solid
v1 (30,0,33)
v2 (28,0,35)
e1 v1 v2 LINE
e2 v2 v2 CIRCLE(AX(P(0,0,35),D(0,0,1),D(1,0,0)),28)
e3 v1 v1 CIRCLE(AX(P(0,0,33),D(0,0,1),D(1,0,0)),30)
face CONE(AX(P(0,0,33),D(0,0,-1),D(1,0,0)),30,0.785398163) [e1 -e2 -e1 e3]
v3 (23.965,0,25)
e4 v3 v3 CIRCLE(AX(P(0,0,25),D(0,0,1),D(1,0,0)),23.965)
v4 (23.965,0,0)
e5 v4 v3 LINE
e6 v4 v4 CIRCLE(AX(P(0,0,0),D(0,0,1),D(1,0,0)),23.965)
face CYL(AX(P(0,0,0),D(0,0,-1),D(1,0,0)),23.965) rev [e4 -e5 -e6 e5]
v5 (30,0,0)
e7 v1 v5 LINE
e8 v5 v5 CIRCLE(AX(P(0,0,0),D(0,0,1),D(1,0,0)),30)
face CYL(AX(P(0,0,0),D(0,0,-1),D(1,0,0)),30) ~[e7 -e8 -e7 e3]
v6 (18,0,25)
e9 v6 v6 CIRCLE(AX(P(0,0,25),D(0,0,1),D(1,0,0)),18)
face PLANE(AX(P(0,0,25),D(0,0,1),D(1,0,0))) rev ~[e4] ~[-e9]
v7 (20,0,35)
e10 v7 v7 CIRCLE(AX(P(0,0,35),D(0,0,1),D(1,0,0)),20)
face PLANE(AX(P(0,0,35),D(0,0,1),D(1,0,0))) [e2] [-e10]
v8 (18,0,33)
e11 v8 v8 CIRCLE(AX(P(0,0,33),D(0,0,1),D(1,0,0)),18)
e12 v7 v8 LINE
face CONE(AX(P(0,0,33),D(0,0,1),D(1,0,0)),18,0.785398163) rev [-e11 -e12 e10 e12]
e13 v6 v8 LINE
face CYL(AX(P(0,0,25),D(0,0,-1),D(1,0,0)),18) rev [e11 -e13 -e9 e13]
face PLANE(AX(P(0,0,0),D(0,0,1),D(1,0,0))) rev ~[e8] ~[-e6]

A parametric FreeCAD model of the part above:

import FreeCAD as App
import Part
import Sketcher

V = App.Vector


def edges_at(feature, points):
    """Names of the edges that pass closest to the given points."""
    edges = feature.Shape.Edges
    near = lambda p: min(range(len(edges)), key=lambda i: edges[i].distToShape(Part.Vertex(*p))[0])
    return sorted({f"Edge{near(p) + 1}" for p in points})

doc = App.newDocument("Part")
body = doc.addObject("PartDesign::Body", "Body")

sketch1 = body.newObject("Sketcher::SketchObject", "Sketch")
sketch1.AttachmentSupport = (doc.getObject("XY_Plane"), [""])
sketch1.MapMode = "FlatFace"
sketch1.addGeometry([
    Part.Circle(V(0, 0, 0), V(0, 0, 1), 30),
    Part.Circle(V(0, 0, 0), V(0, 0, 1), 24),
], False)
sketch1.addConstraint([
    Sketcher.Constraint("Coincident", 0, 3, -1, 1),
    Sketcher.Constraint("Coincident", 1, 3, -1, 1),
    Sketcher.Constraint("Diameter", 0, 60.0),
    Sketcher.Constraint("Diameter", 1, 47.93),
])
pad1 = body.newObject("PartDesign::Pad", "Pad")
pad1.Profile = sketch1
pad1.Length = 25

sketch2 = body.newObject("Sketcher::SketchObject", "Sketch001")
sketch2.AttachmentSupport = (doc.getObject("XY_Plane"), [""])
sketch2.MapMode = "FlatFace"
sketch2.AttachmentOffset = App.Placement(V(0, 0, 25), App.Rotation())
sketch2.addGeometry([
    Part.Circle(V(0, 0, 0), V(0, 0, 1), 30),
    Part.Circle(V(0, 0, 0), V(0, 0, 1), 18),
], False)
sketch2.addConstraint([
    Sketcher.Constraint("Coincident", 0, 3, -1, 1),
    Sketcher.Constraint("Coincident", 1, 3, -1, 1),
    Sketcher.Constraint("Diameter", 1, 36.0),
    Sketcher.Constraint("Diameter", 0, 60.0),
])
pad2 = body.newObject("PartDesign::Pad", "Pad001")
pad2.Profile = sketch2
pad2.Length = 10
doc.recompute()

chamfer = body.newObject("PartDesign::Chamfer", "Chamfer")
chamfer.Base = (pad2, edges_at(pad2, [(-30, 0, 35), (-18, 0, 35)]))
chamfer.Size = 2

doc.recompute()
